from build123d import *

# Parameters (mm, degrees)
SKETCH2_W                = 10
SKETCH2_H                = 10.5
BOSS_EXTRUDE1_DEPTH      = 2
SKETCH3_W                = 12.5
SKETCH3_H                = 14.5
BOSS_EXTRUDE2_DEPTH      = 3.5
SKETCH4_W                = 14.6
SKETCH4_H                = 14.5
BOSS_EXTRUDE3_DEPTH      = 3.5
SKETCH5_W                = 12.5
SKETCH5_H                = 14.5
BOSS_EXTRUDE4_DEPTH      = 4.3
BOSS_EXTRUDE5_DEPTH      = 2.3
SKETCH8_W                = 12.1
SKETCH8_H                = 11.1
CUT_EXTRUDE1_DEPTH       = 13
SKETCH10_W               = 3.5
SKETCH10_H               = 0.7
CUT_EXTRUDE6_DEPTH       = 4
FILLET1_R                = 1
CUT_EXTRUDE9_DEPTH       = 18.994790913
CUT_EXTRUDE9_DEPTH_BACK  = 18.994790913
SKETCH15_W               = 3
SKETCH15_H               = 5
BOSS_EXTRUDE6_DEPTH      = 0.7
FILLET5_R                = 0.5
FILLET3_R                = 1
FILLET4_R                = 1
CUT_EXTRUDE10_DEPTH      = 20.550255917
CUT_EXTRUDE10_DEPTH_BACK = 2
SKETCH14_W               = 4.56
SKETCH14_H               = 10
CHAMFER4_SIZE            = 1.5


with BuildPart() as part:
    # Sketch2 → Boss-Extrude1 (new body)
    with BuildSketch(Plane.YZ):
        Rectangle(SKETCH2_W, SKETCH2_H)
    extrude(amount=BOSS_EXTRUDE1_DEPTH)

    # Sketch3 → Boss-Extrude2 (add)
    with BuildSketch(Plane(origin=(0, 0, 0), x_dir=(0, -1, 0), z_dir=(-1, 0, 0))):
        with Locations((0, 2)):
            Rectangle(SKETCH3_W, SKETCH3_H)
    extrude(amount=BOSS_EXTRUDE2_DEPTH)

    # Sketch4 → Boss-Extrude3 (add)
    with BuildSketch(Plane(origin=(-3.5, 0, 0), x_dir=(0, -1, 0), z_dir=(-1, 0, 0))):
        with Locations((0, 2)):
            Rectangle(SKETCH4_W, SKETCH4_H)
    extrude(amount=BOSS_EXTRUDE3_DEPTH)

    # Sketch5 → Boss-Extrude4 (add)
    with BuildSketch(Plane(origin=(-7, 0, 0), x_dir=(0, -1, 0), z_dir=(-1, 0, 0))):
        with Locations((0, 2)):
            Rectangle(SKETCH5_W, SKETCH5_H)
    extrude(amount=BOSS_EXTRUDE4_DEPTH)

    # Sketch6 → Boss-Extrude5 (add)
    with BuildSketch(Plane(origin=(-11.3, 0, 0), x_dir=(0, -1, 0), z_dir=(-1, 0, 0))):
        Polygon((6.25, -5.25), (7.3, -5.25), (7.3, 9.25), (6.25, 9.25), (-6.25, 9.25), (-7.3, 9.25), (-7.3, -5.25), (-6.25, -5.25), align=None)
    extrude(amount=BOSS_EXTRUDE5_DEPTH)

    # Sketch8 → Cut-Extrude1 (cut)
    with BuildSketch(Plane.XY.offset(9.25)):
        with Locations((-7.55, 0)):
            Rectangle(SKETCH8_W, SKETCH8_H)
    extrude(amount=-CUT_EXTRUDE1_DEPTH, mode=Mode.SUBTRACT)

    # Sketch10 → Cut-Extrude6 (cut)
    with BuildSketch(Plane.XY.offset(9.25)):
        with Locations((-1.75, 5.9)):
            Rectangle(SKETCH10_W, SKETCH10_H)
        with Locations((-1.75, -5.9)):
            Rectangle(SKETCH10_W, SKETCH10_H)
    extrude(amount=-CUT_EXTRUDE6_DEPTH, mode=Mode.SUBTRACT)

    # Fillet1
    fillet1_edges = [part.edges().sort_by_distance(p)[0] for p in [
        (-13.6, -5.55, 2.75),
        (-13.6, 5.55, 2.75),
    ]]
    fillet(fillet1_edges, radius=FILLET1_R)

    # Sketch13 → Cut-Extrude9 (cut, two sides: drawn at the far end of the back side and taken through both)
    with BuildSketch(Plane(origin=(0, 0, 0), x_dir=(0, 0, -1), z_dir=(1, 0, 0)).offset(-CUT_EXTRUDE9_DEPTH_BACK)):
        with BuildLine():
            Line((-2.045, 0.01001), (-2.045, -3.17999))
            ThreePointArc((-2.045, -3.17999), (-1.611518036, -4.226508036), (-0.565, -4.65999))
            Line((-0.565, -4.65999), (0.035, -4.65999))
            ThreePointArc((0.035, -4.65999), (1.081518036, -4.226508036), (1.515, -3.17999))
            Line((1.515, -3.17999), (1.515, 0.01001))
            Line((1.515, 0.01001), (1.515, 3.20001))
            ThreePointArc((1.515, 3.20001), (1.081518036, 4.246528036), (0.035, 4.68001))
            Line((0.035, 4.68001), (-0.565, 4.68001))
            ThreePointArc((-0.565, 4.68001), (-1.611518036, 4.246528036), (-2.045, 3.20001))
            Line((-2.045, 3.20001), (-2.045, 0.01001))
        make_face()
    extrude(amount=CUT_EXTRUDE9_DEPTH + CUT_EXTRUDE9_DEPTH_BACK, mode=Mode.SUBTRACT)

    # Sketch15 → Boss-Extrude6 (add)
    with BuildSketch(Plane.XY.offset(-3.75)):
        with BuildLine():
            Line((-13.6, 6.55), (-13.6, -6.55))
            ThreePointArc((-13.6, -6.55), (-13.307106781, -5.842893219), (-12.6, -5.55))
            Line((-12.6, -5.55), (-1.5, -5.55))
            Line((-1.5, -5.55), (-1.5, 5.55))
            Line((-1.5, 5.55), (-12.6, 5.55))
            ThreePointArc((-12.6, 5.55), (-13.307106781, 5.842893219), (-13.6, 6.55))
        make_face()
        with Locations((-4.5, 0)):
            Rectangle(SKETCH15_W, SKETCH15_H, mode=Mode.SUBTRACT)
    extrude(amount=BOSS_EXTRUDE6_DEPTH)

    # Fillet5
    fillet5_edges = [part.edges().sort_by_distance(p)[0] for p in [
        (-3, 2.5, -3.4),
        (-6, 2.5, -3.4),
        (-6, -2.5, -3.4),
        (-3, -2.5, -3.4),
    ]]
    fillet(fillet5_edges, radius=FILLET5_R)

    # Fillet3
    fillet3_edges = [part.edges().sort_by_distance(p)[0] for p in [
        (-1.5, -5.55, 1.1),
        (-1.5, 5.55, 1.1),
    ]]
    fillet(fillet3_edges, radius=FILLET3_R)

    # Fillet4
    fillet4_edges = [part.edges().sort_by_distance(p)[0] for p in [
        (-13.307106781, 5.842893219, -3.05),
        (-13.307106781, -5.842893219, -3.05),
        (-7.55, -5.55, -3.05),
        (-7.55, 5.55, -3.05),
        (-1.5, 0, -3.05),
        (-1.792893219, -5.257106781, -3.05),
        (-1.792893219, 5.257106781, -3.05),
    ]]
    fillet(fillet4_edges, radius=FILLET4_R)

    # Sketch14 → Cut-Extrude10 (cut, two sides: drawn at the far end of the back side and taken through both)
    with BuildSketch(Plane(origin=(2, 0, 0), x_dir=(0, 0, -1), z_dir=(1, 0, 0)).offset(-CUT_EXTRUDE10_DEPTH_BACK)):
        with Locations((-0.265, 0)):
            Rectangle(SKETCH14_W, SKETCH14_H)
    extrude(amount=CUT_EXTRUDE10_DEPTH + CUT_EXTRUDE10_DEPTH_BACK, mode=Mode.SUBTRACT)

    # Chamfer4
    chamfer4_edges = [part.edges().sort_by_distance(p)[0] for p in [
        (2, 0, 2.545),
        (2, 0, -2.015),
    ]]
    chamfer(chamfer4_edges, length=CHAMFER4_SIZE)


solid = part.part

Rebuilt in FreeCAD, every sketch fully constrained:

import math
import FreeCAD as App
import Part
import Sketcher
from FreeCAD import Vector
Q = App.Units.Quantity


def edges_at(feature, points):
    """Names of the edges that pass closest to the given points."""
    edges = feature.Shape.Edges
    near = lambda p: min(range(len(edges)), key=lambda i: edges[i].distToShape(Part.Vertex(*p))[0])
    return sorted({f"Edge{near(p) + 1}" for p in points})

doc = App.newDocument("Part")
body = doc.addObject("PartDesign::Body", "Body")

# Sketch on YZ plane
sketch1 = doc.addObject("Sketcher::SketchObject", "Sketch")
body.addObject(sketch1)
sketch1.AttachmentSupport = (doc.YZ_Plane, [""])
sketch1.MapMode = "FlatFace"
sketch1.addGeometry(Part.LineSegment(Vector(-5, 5.25, 0), Vector(-5, -5.25, 0)), False)
sketch1.addGeometry(Part.LineSegment(Vector(-5, -5.25, 0), Vector(5, -5.25, 0)), False)
sketch1.addGeometry(Part.LineSegment(Vector(5, -5.25, 0), Vector(5, 5.25, 0)), False)
sketch1.addGeometry(Part.LineSegment(Vector(5, 5.25, 0), Vector(-5, 5.25, 0)), False)
sketch1.addConstraint(Sketcher.Constraint("Coincident", 0, 2, 1, 1))
sketch1.addConstraint(Sketcher.Constraint("Coincident", 1, 2, 2, 1))
sketch1.addConstraint(Sketcher.Constraint("Coincident", 2, 2, 3, 1))
sketch1.addConstraint(Sketcher.Constraint("Coincident", 3, 2, 0, 1))
sketch1.addConstraint(Sketcher.Constraint("Vertical", 0))
sketch1.addConstraint(Sketcher.Constraint("Horizontal", 1))
sketch1.addConstraint(Sketcher.Constraint("Vertical", 2))
sketch1.addConstraint(Sketcher.Constraint("Horizontal", 3))
sketch1.addConstraint(Sketcher.Constraint("Symmetric", 0, 2, 2, 2, -1, 1))
sketch1.addConstraint(Sketcher.Constraint("DistanceX", 1, 1, 1, 2, Q("10 mm")))
sketch1.addConstraint(Sketcher.Constraint("DistanceY", 0, 2, 0, 1, Q("10.5 mm")))
pad1 = doc.addObject("PartDesign::Pad", "Pad")
body.addObject(pad1)
pad1.Profile = sketch1
pad1.Length = 2

# Sketch on YZ plane
sketch2 = doc.addObject("Sketcher::SketchObject", "Sketch001")
body.addObject(sketch2)
sketch2.AttachmentSupport = (doc.YZ_Plane, [""])
sketch2.MapMode = "FlatFace"
sketch2.addGeometry(Part.LineSegment(Vector(6.25, 9.25, 0), Vector(6.25, -5.25, 0)), False)
sketch2.addGeometry(Part.LineSegment(Vector(6.25, -5.25, 0), Vector(-6.25, -5.25, 0)), False)
sketch2.addGeometry(Part.LineSegment(Vector(-6.25, -5.25, 0), Vector(-6.25, 9.25, 0)), False)
sketch2.addGeometry(Part.LineSegment(Vector(-6.25, 9.25, 0), Vector(6.25, 9.25, 0)), False)
sketch2.addConstraint(Sketcher.Constraint("Coincident", 0, 2, 1, 1))
sketch2.addConstraint(Sketcher.Constraint("Coincident", 1, 2, 2, 1))
sketch2.addConstraint(Sketcher.Constraint("Coincident", 2, 2, 3, 1))
sketch2.addConstraint(Sketcher.Constraint("Coincident", 3, 2, 0, 1))
sketch2.addConstraint(Sketcher.Constraint("Vertical", 0))
sketch2.addConstraint(Sketcher.Constraint("Horizontal", 1))
sketch2.addConstraint(Sketcher.Constraint("Vertical", 2))
sketch2.addConstraint(Sketcher.Constraint("Horizontal", 3))
sketch2.addConstraint(Sketcher.Constraint("DistanceX", 1, 2, 1, 1, Q("12.5 mm")))
sketch2.addConstraint(Sketcher.Constraint("DistanceY", 0, 2, 0, 1, Q("14.5 mm")))
sketch2.addConstraint(Sketcher.Constraint("DistanceX", -1, 1, 0, 2, Q("6.25 mm")))
sketch2.addConstraint(Sketcher.Constraint("DistanceY", 0, 2, -1, 1, Q("5.25 mm")))
pad2 = doc.addObject("PartDesign::Pad", "Pad001")
body.addObject(pad2)
pad2.Profile = sketch2
pad2.Length = 3.5
pad2.Reversed = True

# Sketch on YZ plane
sketch3 = doc.addObject("Sketcher::SketchObject", "Sketch002")
body.addObject(sketch3)
sketch3.AttachmentSupport = (doc.YZ_Plane, [""])
sketch3.MapMode = "FlatFace"
sketch3.AttachmentOffset = App.Placement(Vector(0, 0, -3.5), App.Rotation())
sketch3.addGeometry(Part.LineSegment(Vector(7.3, 9.25, 0), Vector(7.3, -5.25, 0)), False)
sketch3.addGeometry(Part.LineSegment(Vector(7.3, -5.25, 0), Vector(-7.3, -5.25, 0)), False)
sketch3.addGeometry(Part.LineSegment(Vector(-7.3, -5.25, 0), Vector(-7.3, 9.25, 0)), False)
sketch3.addGeometry(Part.LineSegment(Vector(-7.3, 9.25, 0), Vector(7.3, 9.25, 0)), False)
sketch3.addConstraint(Sketcher.Constraint("Coincident", 0, 2, 1, 1))
sketch3.addConstraint(Sketcher.Constraint("Coincident", 1, 2, 2, 1))
sketch3.addConstraint(Sketcher.Constraint("Coincident", 2, 2, 3, 1))
sketch3.addConstraint(Sketcher.Constraint("Coincident", 3, 2, 0, 1))
sketch3.addConstraint(Sketcher.Constraint("Vertical", 0))
sketch3.addConstraint(Sketcher.Constraint("Horizontal", 1))
sketch3.addConstraint(Sketcher.Constraint("Vertical", 2))
sketch3.addConstraint(Sketcher.Constraint("Horizontal", 3))
sketch3.addConstraint(Sketcher.Constraint("DistanceX", 1, 2, 1, 1, Q("14.6 mm")))
sketch3.addConstraint(Sketcher.Constraint("DistanceY", 0, 2, 0, 1, Q("14.5 mm")))
sketch3.addConstraint(Sketcher.Constraint("DistanceX", -1, 1, 0, 2, Q("7.3 mm")))
sketch3.addConstraint(Sketcher.Constraint("DistanceY", 0, 2, -1, 1, Q("5.25 mm")))
pad3 = doc.addObject("PartDesign::Pad", "Pad002")
body.addObject(pad3)
pad3.Profile = sketch3
pad3.Length = 3.5
pad3.Reversed = True

# Sketch on YZ plane
sketch4 = doc.addObject("Sketcher::SketchObject", "Sketch003")
body.addObject(sketch4)
sketch4.AttachmentSupport = (doc.YZ_Plane, [""])
sketch4.MapMode = "FlatFace"
sketch4.AttachmentOffset = App.Placement(Vector(0, 0, -7), App.Rotation())
sketch4.addGeometry(Part.LineSegment(Vector(6.25, 9.25, 0), Vector(6.25, -5.25, 0)), False)
sketch4.addGeometry(Part.LineSegment(Vector(6.25, -5.25, 0), Vector(-6.25, -5.25, 0)), False)
sketch4.addGeometry(Part.LineSegment(Vector(-6.25, -5.25, 0), Vector(-6.25, 9.25, 0)), False)
sketch4.addGeometry(Part.LineSegment(Vector(-6.25, 9.25, 0), Vector(6.25, 9.25, 0)), False)
sketch4.addConstraint(Sketcher.Constraint("Coincident", 0, 2, 1, 1))
sketch4.addConstraint(Sketcher.Constraint("Coincident", 1, 2, 2, 1))
sketch4.addConstraint(Sketcher.Constraint("Coincident", 2, 2, 3, 1))
sketch4.addConstraint(Sketcher.Constraint("Coincident", 3, 2, 0, 1))
sketch4.addConstraint(Sketcher.Constraint("Vertical", 0))
sketch4.addConstraint(Sketcher.Constraint("Horizontal", 1))
sketch4.addConstraint(Sketcher.Constraint("Vertical", 2))
sketch4.addConstraint(Sketcher.Constraint("Horizontal", 3))
sketch4.addConstraint(Sketcher.Constraint("DistanceX", 1, 2, 1, 1, Q("12.5 mm")))
sketch4.addConstraint(Sketcher.Constraint("DistanceY", 0, 2, 0, 1, Q("14.5 mm")))
sketch4.addConstraint(Sketcher.Constraint("DistanceX", -1, 1, 0, 2, Q("6.25 mm")))
sketch4.addConstraint(Sketcher.Constraint("DistanceY", 0, 2, -1, 1, Q("5.25 mm")))
pad4 = doc.addObject("PartDesign::Pad", "Pad003")
body.addObject(pad4)
pad4.Profile = sketch4
pad4.Length = 4.3
pad4.Reversed = True

# Sketch on YZ plane
sketch5 = doc.addObject("Sketcher::SketchObject", "Sketch004")
body.addObject(sketch5)
sketch5.AttachmentSupport = (doc.YZ_Plane, [""])
sketch5.MapMode = "FlatFace"
sketch5.AttachmentOffset = App.Placement(Vector(0, 0, -11.3), App.Rotation())
sketch5.addGeometry(Part.LineSegment(Vector(-7.3, -5.25, 0), Vector(-7.3, 9.25, 0)), False)
sketch5.addGeometry(Part.LineSegment(Vector(-7.3, 9.25, 0), Vector(7.3, 9.25, 0)), False)
sketch5.addGeometry(Part.LineSegment(Vector(7.3, 9.25, 0), Vector(7.3, -5.25, 0)), False)
sketch5.addGeometry(Part.LineSegment(Vector(7.3, -5.25, 0), Vector(-7.3, -5.25, 0)), False)
sketch5.addConstraint(Sketcher.Constraint("Coincident", 0, 2, 1, 1))
sketch5.addConstraint(Sketcher.Constraint("Coincident", 1, 2, 2, 1))
sketch5.addConstraint(Sketcher.Constraint("Coincident", 2, 2, 3, 1))
sketch5.addConstraint(Sketcher.Constraint("Coincident", 3, 2, 0, 1))
sketch5.addConstraint(Sketcher.Constraint("Vertical", 0))
sketch5.addConstraint(Sketcher.Constraint("Horizontal", 1))
sketch5.addConstraint(Sketcher.Constraint("Vertical", 2))
sketch5.addConstraint(Sketcher.Constraint("Horizontal", 3))
sketch5.addConstraint(Sketcher.Constraint("DistanceX", 1, 1, 1, 2, Q("14.6 mm")))
sketch5.addConstraint(Sketcher.Constraint("DistanceY", 0, 1, 0, 2, Q("14.5 mm")))
sketch5.addConstraint(Sketcher.Constraint("DistanceX", 0, 2, -1, 1, Q("7.3 mm")))
sketch5.addConstraint(Sketcher.Constraint("DistanceY", -1, 1, 0, 2, Q("9.25 mm")))
pad5 = doc.addObject("PartDesign::Pad", "Pad004")
body.addObject(pad5)
pad5.Profile = sketch5
pad5.Length = 2.3
pad5.Reversed = True

# Sketch on XY plane
sketch6 = doc.addObject("Sketcher::SketchObject", "Sketch005")
body.addObject(sketch6)
sketch6.AttachmentSupport = (doc.XY_Plane, [""])
sketch6.MapMode = "FlatFace"
sketch6.AttachmentOffset = App.Placement(Vector(0, 0, 9.25), App.Rotation())
sketch6.addGeometry(Part.LineSegment(Vector(-13.6, 5.55, 0), Vector(-13.6, -5.55, 0)), False)
sketch6.addGeometry(Part.LineSegment(Vector(-13.6, -5.55, 0), Vector(-1.5, -5.55, 0)), False)
sketch6.addGeometry(Part.LineSegment(Vector(-1.5, -5.55, 0), Vector(-1.5, 5.55, 0)), False)
sketch6.addGeometry(Part.LineSegment(Vector(-1.5, 5.55, 0), Vector(-13.6, 5.55, 0)), False)
sketch6.addConstraint(Sketcher.Constraint("Coincident", 0, 2, 1, 1))
sketch6.addConstraint(Sketcher.Constraint("Coincident", 1, 2, 2, 1))
sketch6.addConstraint(Sketcher.Constraint("Coincident", 2, 2, 3, 1))
sketch6.addConstraint(Sketcher.Constraint("Coincident", 3, 2, 0, 1))
sketch6.addConstraint(Sketcher.Constraint("Vertical", 0))
sketch6.addConstraint(Sketcher.Constraint("Horizontal", 1))
sketch6.addConstraint(Sketcher.Constraint("Vertical", 2))
sketch6.addConstraint(Sketcher.Constraint("Horizontal", 3))
sketch6.addConstraint(Sketcher.Constraint("DistanceX", 1, 1, 1, 2, Q("12.1 mm")))
sketch6.addConstraint(Sketcher.Constraint("DistanceY", 0, 2, 0, 1, Q("11.1 mm")))
sketch6.addConstraint(Sketcher.Constraint("DistanceX", 0, 2, -1, 1, Q("13.6 mm")))
sketch6.addConstraint(Sketcher.Constraint("DistanceY", 0, 2, -1, 1, Q("5.55 mm")))
pocket1 = doc.addObject("PartDesign::Pocket", "Pocket")
body.addObject(pocket1)
pocket1.Profile = sketch6
pocket1.Length = 13

# Sketch on XY plane
sketch7 = doc.addObject("Sketcher::SketchObject", "Sketch006")
body.addObject(sketch7)
sketch7.AttachmentSupport = (doc.XY_Plane, [""])
sketch7.MapMode = "FlatFace"
sketch7.AttachmentOffset = App.Placement(Vector(0, 0, 9.25), App.Rotation())
sketch7.addGeometry(Part.LineSegment(Vector(-3.5, 6.25, 0), Vector(-3.5, 5.55, 0)), False)
sketch7.addGeometry(Part.LineSegment(Vector(-3.5, 5.55, 0), Vector(0, 5.55, 0)), False)
sketch7.addGeometry(Part.LineSegment(Vector(0, 5.55, 0), Vector(0, 6.25, 0)), False)
sketch7.addGeometry(Part.LineSegment(Vector(0, 6.25, 0), Vector(-3.5, 6.25, 0)), False)
sketch7.addGeometry(Part.LineSegment(Vector(-3.5, -5.55, 0), Vector(-3.5, -6.25, 0)), False)
sketch7.addGeometry(Part.LineSegment(Vector(-3.5, -6.25, 0), Vector(0, -6.25, 0)), False)
sketch7.addGeometry(Part.LineSegment(Vector(0, -6.25, 0), Vector(0, -5.55, 0)), False)
sketch7.addGeometry(Part.LineSegment(Vector(0, -5.55, 0), Vector(-3.5, -5.55, 0)), False)
sketch7.addConstraint(Sketcher.Constraint("Coincident", 0, 2, 1, 1))
sketch7.addConstraint(Sketcher.Constraint("Coincident", 1, 2, 2, 1))
sketch7.addConstraint(Sketcher.Constraint("Coincident", 2, 2, 3, 1))
sketch7.addConstraint(Sketcher.Constraint("Coincident", 3, 2, 0, 1))
sketch7.addConstraint(Sketcher.Constraint("Coincident", 4, 2, 5, 1))
sketch7.addConstraint(Sketcher.Constraint("Coincident", 5, 2, 6, 1))
sketch7.addConstraint(Sketcher.Constraint("Coincident", 6, 2, 7, 1))
sketch7.addConstraint(Sketcher.Constraint("Coincident", 7, 2, 4, 1))
sketch7.addConstraint(Sketcher.Constraint("Vertical", 0))
sketch7.addConstraint(Sketcher.Constraint("Horizontal", 1))
sketch7.addConstraint(Sketcher.Constraint("Vertical", 2))
sketch7.addConstraint(Sketcher.Constraint("Horizontal", 3))
sketch7.addConstraint(Sketcher.Constraint("Vertical", 4))
sketch7.addConstraint(Sketcher.Constraint("Horizontal", 5))
sketch7.addConstraint(Sketcher.Constraint("Vertical", 6))
sketch7.addConstraint(Sketcher.Constraint("Horizontal", 7))
sketch7.addConstraint(Sketcher.Constraint("Symmetric", 2, 2, 5, 2, -1, 1))
sketch7.addConstraint(Sketcher.Constraint("Symmetric", 1, 2, 6, 2, -1))
sketch7.addConstraint(Sketcher.Constraint("Vertical", 3, 2, 4, 2))
sketch7.addConstraint(Sketcher.Constraint("DistanceX", 1, 1, 1, 2, Q("3.5 mm")))
sketch7.addConstraint(Sketcher.Constraint("DistanceY", 0, 2, 0, 1, Q("0.7 mm")))
sketch7.addConstraint(Sketcher.Constraint("DistanceY", 4, 2, 0, 2, Q("11.8 mm")))
pocket2 = doc.addObject("PartDesign::Pocket", "Pocket001")
body.addObject(pocket2)
pocket2.Profile = sketch7
pocket2.Length = 4
doc.recompute()

fillet = doc.addObject("PartDesign::Fillet", "Fillet")
body.addObject(fillet)
fillet.Base = (pocket2, edges_at(pocket2, [(-13.6, -5.55, 2.75), (-13.6, 5.55, 2.75)]))
fillet.Radius = 1

# Sketch on YZ plane
sketch8 = doc.addObject("Sketcher::SketchObject", "Sketch007")
body.addObject(sketch8)
sketch8.AttachmentSupport = (doc.YZ_Plane, [""])
sketch8.MapMode = "FlatFace"
sketch8.addGeometry(Part.ArcOfCircle(Part.Circle(Vector(-3.17999, 0.565, 0), Vector(0, 0, 1), 1.48), math.radians(90), math.radians(180)), False)
sketch8.addGeometry(Part.LineSegment(Vector(-4.65999, 0.565, 0), Vector(-4.65999, -0.035, 0)), False)
sketch8.addGeometry(Part.ArcOfCircle(Part.Circle(Vector(-3.17999, -0.035, 0), Vector(0, 0, 1), 1.48), math.radians(-180), math.radians(-90)), False)
sketch8.addGeometry(Part.LineSegment(Vector(-3.17999, -1.515, 0), Vector(3.20001, -1.515, 0)), False)
sketch8.addGeometry(Part.ArcOfCircle(Part.Circle(Vector(3.20001, -0.035, 0), Vector(0, 0, 1), 1.48), math.radians(-90), math.radians(0)), False)
sketch8.addGeometry(Part.LineSegment(Vector(4.68001, -0.035, 0), Vector(4.68001, 0.565, 0)), False)
sketch8.addGeometry(Part.ArcOfCircle(Part.Circle(Vector(3.20001, 0.565, 0), Vector(0, 0, 1), 1.48), math.radians(0), math.radians(90)), False)
sketch8.addGeometry(Part.LineSegment(Vector(3.20001, 2.045, 0), Vector(-3.17999, 2.045, 0)), False)
sketch8.addConstraint(Sketcher.Constraint("Tangent", 0, 2, 1, 1))
sketch8.addConstraint(Sketcher.Constraint("Tangent", 1, 2, 2, 1))
sketch8.addConstraint(Sketcher.Constraint("Tangent", 2, 2, 3, 1))
sketch8.addConstraint(Sketcher.Constraint("Tangent", 3, 2, 4, 1))
sketch8.addConstraint(Sketcher.Constraint("Tangent", 4, 2, 5, 1))
sketch8.addConstraint(Sketcher.Constraint("Tangent", 5, 2, 6, 1))
sketch8.addConstraint(Sketcher.Constraint("Tangent", 6, 2, 7, 1))
sketch8.addConstraint(Sketcher.Constraint("Tangent", 7, 2, 0, 1))
sketch8.addConstraint(Sketcher.Constraint("Vertical", 1))
sketch8.addConstraint(Sketcher.Constraint("Horizontal", 3))
sketch8.addConstraint(Sketcher.Constraint("Vertical", 5))
sketch8.addConstraint(Sketcher.Constraint("Horizontal", 7))
sketch8.addConstraint(Sketcher.Constraint("Equal", 0, 2))
sketch8.addConstraint(Sketcher.Constraint("Equal", 2, 4))
sketch8.addConstraint(Sketcher.Constraint("Equal", 4, 6))
sketch8.addConstraint(Sketcher.Constraint("Radius", 0, Q("1.48 mm")))
sketch8.addConstraint(Sketcher.Constraint("DistanceY", 1, 2, 1, 1, Q("0.6 mm")))
sketch8.addConstraint(Sketcher.Constraint("DistanceX", 3, 1, 3, 2, Q("6.38 mm")))
sketch8.addConstraint(Sketcher.Constraint("DistanceY", -1, 1, 0, 3, Q("0.565 mm")))
sketch8.addConstraint(Sketcher.Constraint("DistanceX", 0, 3, -1, 1, Q("3.17999 mm")))
pocket3 = doc.addObject("PartDesign::Pocket", "Pocket002")
body.addObject(pocket3)
pocket3.Profile = sketch8
pocket3.Type = "ThroughAll"
pocket3.Midplane = True

# Sketch on XY plane
sketch9 = doc.addObject("Sketcher::SketchObject", "Sketch008")
body.addObject(sketch9)
sketch9.AttachmentSupport = (doc.XY_Plane, [""])
sketch9.MapMode = "FlatFace"
sketch9.AttachmentOffset = App.Placement(Vector(0, 0, -3.75), App.Rotation())
sketch9.addGeometry(Part.LineSegment(Vector(-13.6, 6.55, 0), Vector(-13.6, -6.55, 0)), False)
sketch9.addGeometry(Part.ArcOfCircle(Part.Circle(Vector(-12.6, -6.55, 0), Vector(0, 0, 1), 1), math.radians(90), math.radians(180)), False)
sketch9.addGeometry(Part.LineSegment(Vector(-12.6, -5.55, 0), Vector(-1.5, -5.55, 0)), False)
sketch9.addGeometry(Part.LineSegment(Vector(-1.5, -5.55, 0), Vector(-1.5, 5.55, 0)), False)
sketch9.addGeometry(Part.LineSegment(Vector(-1.5, 5.55, 0), Vector(-12.6, 5.55, 0)), False)
sketch9.addGeometry(Part.ArcOfCircle(Part.Circle(Vector(-12.6, 6.55, 0), Vector(0, 0, 1), 1), math.radians(-180), math.radians(-90)), False)
sketch9.addGeometry(Part.LineSegment(Vector(-3, -2.5, 0), Vector(-6, -2.5, 0)), False)
sketch9.addGeometry(Part.LineSegment(Vector(-6, -2.5, 0), Vector(-6, 2.5, 0)), False)
sketch9.addGeometry(Part.LineSegment(Vector(-6, 2.5, 0), Vector(-3, 2.5, 0)), False)
sketch9.addGeometry(Part.LineSegment(Vector(-3, 2.5, 0), Vector(-3, -2.5, 0)), False)
sketch9.addConstraint(Sketcher.Constraint("Tangent", 0, 2, 1, 2))
sketch9.addConstraint(Sketcher.Constraint("Tangent", 1, 1, 2, 1))
sketch9.addConstraint(Sketcher.Constraint("Coincident", 2, 2, 3, 1))
sketch9.addConstraint(Sketcher.Constraint("Coincident", 3, 2, 4, 1))
sketch9.addConstraint(Sketcher.Constraint("Tangent", 4, 2, 5, 2))
sketch9.addConstraint(Sketcher.Constraint("Tangent", 5, 1, 0, 1))
sketch9.addConstraint(Sketcher.Constraint("Coincident", 6, 2, 7, 1))
sketch9.addConstraint(Sketcher.Constraint("Coincident", 7, 2, 8, 1))
sketch9.addConstraint(Sketcher.Constraint("Coincident", 8, 2, 9, 1))
sketch9.addConstraint(Sketcher.Constraint("Coincident", 9, 2, 6, 1))
sketch9.addConstraint(Sketcher.Constraint("Vertical", 0))
sketch9.addConstraint(Sketcher.Constraint("Horizontal", 2))
sketch9.addConstraint(Sketcher.Constraint("Vertical", 3))
sketch9.addConstraint(Sketcher.Constraint("Horizontal", 4))
sketch9.addConstraint(Sketcher.Constraint("Horizontal", 6))
sketch9.addConstraint(Sketcher.Constraint("Vertical", 7))
sketch9.addConstraint(Sketcher.Constraint("Horizontal", 8))
sketch9.addConstraint(Sketcher.Constraint("Vertical", 9))
sketch9.addConstraint(Sketcher.Constraint("Equal", 1, 5))
sketch9.addConstraint(Sketcher.Constraint("Equal", 4, 3))
sketch9.addConstraint(Sketcher.Constraint("Radius", 1, Q("1 mm")))
sketch9.addConstraint(Sketcher.Constraint("DistanceX", 6, 2, 6, 1, Q("3 mm")))
sketch9.addConstraint(Sketcher.Constraint("DistanceY", 7, 1, 7, 2, Q("5 mm")))
sketch9.addConstraint(Sketcher.Constraint("DistanceX", 2, 1, 2, 2, Q("11.1 mm")))
sketch9.addConstraint(Sketcher.Constraint("DistanceX", 6, 2, -1, 1, Q("6 mm")))
sketch9.addConstraint(Sketcher.Constraint("DistanceX", 1, 3, -1, 1, Q("12.6 mm")))
sketch9.addConstraint(Sketcher.Constraint("DistanceY", 6, 2, -1, 1, Q("2.5 mm")))
sketch9.addConstraint(Sketcher.Constraint("DistanceY", 1, 3, -1, 1, Q("6.55 mm")))
pad6 = doc.addObject("PartDesign::Pad", "Pad005")
body.addObject(pad6)
pad6.Profile = sketch9
pad6.Length = 0.7
doc.recompute()

fillet2 = doc.addObject("PartDesign::Fillet", "Fillet001")
body.addObject(fillet2)
fillet2.Base = (pad6, edges_at(pad6, [
    (-3, 2.5, -3.4),
    (-6, 2.5, -3.4),
    (-6, -2.5, -3.4),
    (-3, -2.5, -3.4),
]))
fillet2.Radius = 0.5
doc.recompute()

fillet3 = doc.addObject("PartDesign::Fillet", "Fillet002")
body.addObject(fillet3)
fillet3.Base = (fillet2, edges_at(fillet2, [(-1.5, -5.55, 1.1), (-1.5, 5.55, 1.1)]))
fillet3.Radius = 1
doc.recompute()

fillet4 = doc.addObject("PartDesign::Fillet", "Fillet003")
body.addObject(fillet4)
fillet4.Base = (fillet3, edges_at(fillet3, [
    (-13.307, 5.843, -3.05),
    (-13.307, -5.843, -3.05),
    (-7.55, -5.55, -3.05),
    (-7.55, 5.55, -3.05),
    (-1.5, 0, -3.05),
    (-1.793, -5.257, -3.05),
    (-1.793, 5.257, -3.05),
]))
fillet4.Radius = 1

# Sketch on YZ plane
sketch10 = doc.addObject("Sketcher::SketchObject", "Sketch009")
body.addObject(sketch10)
sketch10.AttachmentSupport = (doc.YZ_Plane, [""])
sketch10.MapMode = "FlatFace"
sketch10.AttachmentOffset = App.Placement(Vector(0, 0, 2), App.Rotation())
sketch10.addGeometry(Part.LineSegment(Vector(5, 2.545, 0), Vector(-5, 2.545, 0)), False)
sketch10.addGeometry(Part.LineSegment(Vector(-5, 2.545, 0), Vector(-5, -2.015, 0)), False)
sketch10.addGeometry(Part.LineSegment(Vector(-5, -2.015, 0), Vector(5, -2.015, 0)), False)
sketch10.addGeometry(Part.LineSegment(Vector(5, -2.015, 0), Vector(5, 2.545, 0)), False)
sketch10.addConstraint(Sketcher.Constraint("Coincident", 0, 2, 1, 1))
sketch10.addConstraint(Sketcher.Constraint("Coincident", 1, 2, 2, 1))
sketch10.addConstraint(Sketcher.Constraint("Coincident", 2, 2, 3, 1))
sketch10.addConstraint(Sketcher.Constraint("Coincident", 3, 2, 0, 1))
sketch10.addConstraint(Sketcher.Constraint("Horizontal", 0))
sketch10.addConstraint(Sketcher.Constraint("Vertical", 1))
sketch10.addConstraint(Sketcher.Constraint("Horizontal", 2))
sketch10.addConstraint(Sketcher.Constraint("Vertical", 3))
sketch10.addConstraint(Sketcher.Constraint("DistanceX", 0, 2, 0, 1, Q("10 mm")))
sketch10.addConstraint(Sketcher.Constraint("DistanceX", 0, 2, -1, 1, Q("5 mm")))
sketch10.addConstraint(Sketcher.Constraint("DistanceY", 1, 2, 1, 1, Q("4.56 mm")))
sketch10.addConstraint(Sketcher.Constraint("DistanceY", -1, 1, 0, 2, Q("2.545 mm")))
pocket4 = doc.addObject("PartDesign::Pocket", "Pocket003")
body.addObject(pocket4)
pocket4.Profile = sketch10
pocket4.Type = "TwoLengths"
pocket4.Length = 20.550256
pocket4.Length2 = 2
pocket4.Reversed = True
doc.recompute()

chamfer = doc.addObject("PartDesign::Chamfer", "Chamfer")
body.addObject(chamfer)
chamfer.Base = (pocket4, edges_at(pocket4, [(2, 0, 2.545), (2, 0, -2.015)]))
chamfer.Size = 1.5

doc.recompute()
